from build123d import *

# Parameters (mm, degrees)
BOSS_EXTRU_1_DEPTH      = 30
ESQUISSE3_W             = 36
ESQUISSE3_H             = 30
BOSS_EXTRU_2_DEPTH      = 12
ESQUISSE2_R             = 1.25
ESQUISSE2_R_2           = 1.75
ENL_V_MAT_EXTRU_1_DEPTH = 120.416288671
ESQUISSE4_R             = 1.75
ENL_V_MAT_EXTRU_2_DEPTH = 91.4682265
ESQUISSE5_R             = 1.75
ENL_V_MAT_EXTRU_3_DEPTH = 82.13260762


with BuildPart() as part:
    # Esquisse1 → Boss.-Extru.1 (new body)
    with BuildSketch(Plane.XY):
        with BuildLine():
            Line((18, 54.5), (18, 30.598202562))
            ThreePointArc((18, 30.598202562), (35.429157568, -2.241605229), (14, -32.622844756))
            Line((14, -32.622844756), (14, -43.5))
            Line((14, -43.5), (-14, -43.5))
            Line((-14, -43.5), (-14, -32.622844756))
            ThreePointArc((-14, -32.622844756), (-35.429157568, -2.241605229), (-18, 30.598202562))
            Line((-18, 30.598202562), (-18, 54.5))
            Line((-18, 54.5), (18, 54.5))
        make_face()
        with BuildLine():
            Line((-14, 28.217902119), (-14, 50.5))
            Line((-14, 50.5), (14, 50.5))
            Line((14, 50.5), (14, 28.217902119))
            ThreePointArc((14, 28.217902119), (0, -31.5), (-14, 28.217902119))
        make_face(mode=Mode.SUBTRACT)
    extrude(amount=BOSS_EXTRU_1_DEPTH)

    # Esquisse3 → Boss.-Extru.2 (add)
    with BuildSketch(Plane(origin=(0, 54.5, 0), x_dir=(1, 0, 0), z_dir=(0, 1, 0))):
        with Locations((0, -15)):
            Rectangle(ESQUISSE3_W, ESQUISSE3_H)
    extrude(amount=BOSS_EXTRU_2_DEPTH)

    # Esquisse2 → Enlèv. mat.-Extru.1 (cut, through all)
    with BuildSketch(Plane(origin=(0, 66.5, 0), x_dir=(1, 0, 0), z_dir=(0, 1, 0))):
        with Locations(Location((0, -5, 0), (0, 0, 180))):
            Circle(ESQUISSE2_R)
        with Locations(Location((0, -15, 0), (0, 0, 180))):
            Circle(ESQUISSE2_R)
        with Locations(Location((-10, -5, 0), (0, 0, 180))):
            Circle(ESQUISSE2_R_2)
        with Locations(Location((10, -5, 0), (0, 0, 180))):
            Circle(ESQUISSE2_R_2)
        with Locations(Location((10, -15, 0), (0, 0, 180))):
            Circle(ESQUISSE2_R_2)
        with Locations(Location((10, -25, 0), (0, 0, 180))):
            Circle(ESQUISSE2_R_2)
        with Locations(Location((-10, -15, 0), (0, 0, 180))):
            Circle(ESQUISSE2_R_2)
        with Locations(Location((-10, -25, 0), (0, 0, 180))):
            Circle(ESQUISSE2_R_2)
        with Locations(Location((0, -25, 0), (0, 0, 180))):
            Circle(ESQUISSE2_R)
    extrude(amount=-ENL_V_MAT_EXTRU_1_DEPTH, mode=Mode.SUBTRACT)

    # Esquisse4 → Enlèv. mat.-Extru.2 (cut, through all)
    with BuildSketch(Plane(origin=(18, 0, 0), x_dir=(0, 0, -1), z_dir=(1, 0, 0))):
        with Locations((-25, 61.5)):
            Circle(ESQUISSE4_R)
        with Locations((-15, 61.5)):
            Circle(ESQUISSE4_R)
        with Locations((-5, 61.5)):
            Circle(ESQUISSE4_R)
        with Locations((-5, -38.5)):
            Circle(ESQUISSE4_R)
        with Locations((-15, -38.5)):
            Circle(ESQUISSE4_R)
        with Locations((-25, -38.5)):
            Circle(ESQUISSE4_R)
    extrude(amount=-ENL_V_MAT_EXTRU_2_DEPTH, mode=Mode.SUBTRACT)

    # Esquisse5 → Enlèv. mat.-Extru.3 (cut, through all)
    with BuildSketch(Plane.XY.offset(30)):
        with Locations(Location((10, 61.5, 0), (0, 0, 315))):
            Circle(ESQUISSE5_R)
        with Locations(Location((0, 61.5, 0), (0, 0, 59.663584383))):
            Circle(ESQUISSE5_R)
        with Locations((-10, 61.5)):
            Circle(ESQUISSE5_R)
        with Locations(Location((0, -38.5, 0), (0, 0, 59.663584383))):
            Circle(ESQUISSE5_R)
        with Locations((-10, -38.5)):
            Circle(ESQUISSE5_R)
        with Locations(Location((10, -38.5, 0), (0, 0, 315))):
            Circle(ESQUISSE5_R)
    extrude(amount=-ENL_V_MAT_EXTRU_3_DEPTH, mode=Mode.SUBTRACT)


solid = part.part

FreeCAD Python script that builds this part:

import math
import FreeCAD as App
import Part
import Sketcher

V = App.Vector

doc = App.newDocument("Part")
params = doc.addObject("Spreadsheet::Sheet", "Params")
for row, (alias, value) in enumerate([
    ("sketch1_radius", "35.5 mm"),
    ("sketch1_radius2", "31.5 mm"),
    ("sketch1_width", "36 mm"),
    ("sketch1_width2", "28 mm"),
    ("pad1_length", "30 mm"),
    ("sketch2_width", "36 mm"),
    ("sketch2_height", "30 mm"),
    ("pad2_length", "12 mm"),
    ("sketch3_diameter", "2.5 mm"),
    ("sketch3_diameter2", "3.5 mm"),
    ("sketch4_diameter", "3.5 mm"),
    ("sketch5_diameter", "3.5 mm"),
], start=1):
    params.set(f"A{row}", alias)
    params.set(f"B{row}", "=" + value)
    params.setAlias(f"B{row}", alias)

body = doc.addObject("PartDesign::Body", "Body")

# Sketch on XY plane
sketch1 = body.newObject("Sketcher::SketchObject", "Sketch")
sketch1.AttachmentSupport = (doc.getObject("XY_Plane"), [""])
sketch1.MapMode = "FlatFace"
sketch1.addGeometry(Part.LineSegment(V(18, 30.598203, 0), V(18, 54.5, 0)), False)
sketch1.addGeometry(Part.LineSegment(V(18, 54.5, 0), V(-18, 54.5, 0)), False)
sketch1.addGeometry(Part.LineSegment(V(-18, 54.5, 0), V(-18, 30.598203, 0)), False)
sketch1.addGeometry(Part.ArcOfCircle(Part.Circle(V(0, 0, 0), V(0, 0, 1), 35.5), math.radians(120.467016), math.radians(246.773549)), False)
sketch1.addGeometry(Part.LineSegment(V(-14, -32.622845, 0), V(-14, -43.5, 0)), False)
sketch1.addGeometry(Part.LineSegment(V(-14, -43.5, 0), V(14, -43.5, 0)), False)
sketch1.addGeometry(Part.LineSegment(V(14, -43.5, 0), V(14, -32.622845, 0)), False)
sketch1.addGeometry(Part.ArcOfCircle(Part.Circle(V(0, 0, 0), V(0, 0, 1), 35.5), math.radians(-66.773549), math.radians(59.532984)), False)
sketch1.addGeometry(Part.LineSegment(V(-14, 28.217902, 0), V(-14, 50.5, 0)), False)
sketch1.addGeometry(Part.LineSegment(V(-14, 50.5, 0), V(14, 50.5, 0)), False)
sketch1.addGeometry(Part.LineSegment(V(14, 50.5, 0), V(14, 28.217902, 0)), False)
sketch1.addGeometry(Part.ArcOfCircle(Part.Circle(V(0, 0, 0), V(0, 0, 1), 31.5), math.radians(116.3878), math.radians(423.6122)), False)
sketch1.addConstraint(Sketcher.Constraint("Coincident", 0, 2, 1, 1))
sketch1.addConstraint(Sketcher.Constraint("Coincident", 1, 2, 2, 1))
sketch1.addConstraint(Sketcher.Constraint("Coincident", 2, 2, 3, 1))
sketch1.addConstraint(Sketcher.Constraint("Coincident", 3, 2, 4, 1))
sketch1.addConstraint(Sketcher.Constraint("Coincident", 4, 2, 5, 1))
sketch1.addConstraint(Sketcher.Constraint("Coincident", 5, 2, 6, 1))
sketch1.addConstraint(Sketcher.Constraint("Coincident", 6, 2, 7, 1))
sketch1.addConstraint(Sketcher.Constraint("Coincident", 7, 2, 0, 1))
sketch1.addConstraint(Sketcher.Constraint("Coincident", 8, 2, 9, 1))
sketch1.addConstraint(Sketcher.Constraint("Coincident", 9, 2, 10, 1))
sketch1.addConstraint(Sketcher.Constraint("Coincident", 10, 2, 11, 2))
sketch1.addConstraint(Sketcher.Constraint("Coincident", 11, 1, 8, 1))
sketch1.addConstraint(Sketcher.Constraint("Vertical", 0))
sketch1.addConstraint(Sketcher.Constraint("Horizontal", 1))
sketch1.addConstraint(Sketcher.Constraint("Vertical", 2))
sketch1.addConstraint(Sketcher.Constraint("Vertical", 4))
sketch1.addConstraint(Sketcher.Constraint("Horizontal", 5))
sketch1.addConstraint(Sketcher.Constraint("Vertical", 6))
sketch1.addConstraint(Sketcher.Constraint("Vertical", 8))
sketch1.addConstraint(Sketcher.Constraint("Horizontal", 9))
sketch1.addConstraint(Sketcher.Constraint("Vertical", 10))
sketch1.addConstraint(Sketcher.Constraint("Coincident", 3, 3, -1, 1))
sketch1.addConstraint(Sketcher.Constraint("Coincident", 7, 3, -1, 1))
sketch1.addConstraint(Sketcher.Constraint("Coincident", 11, 3, -1, 1))
sketch1.addConstraint(Sketcher.Constraint("Equal", 3, 7))
sketch1.addConstraint(Sketcher.Constraint("Horizontal", 3, 2, 6, 2))
sketch1.addConstraint(Sketcher.Constraint("Horizontal", 2, 2, 7, 2))
sketch1.addConstraint(Sketcher.Constraint("Horizontal", 10, 2, 11, 1))
sketch1.addConstraint(Sketcher.Constraint("Vertical", 4, 2, 8, 2))
sketch1.addConstraint(Sketcher.Constraint("Radius", 3, 35.5))
sketch1.addConstraint(Sketcher.Constraint("Radius", 11, 31.5))
sketch1.addConstraint(Sketcher.Constraint("DistanceX", 1, 2, 1, 1, 36.0))
sketch1.addConstraint(Sketcher.Constraint("DistanceX", 5, 1, 5, 2, 28.0))
sketch1.addConstraint(Sketcher.Constraint("DistanceY", 8, 2, 1, 2, 4.0))
sketch1.addConstraint(Sketcher.Constraint("DistanceY", -1, 1, 0, 2, 54.5))
sketch1.addConstraint(Sketcher.Constraint("DistanceY", 4, 2, -1, 1, 43.5))
sketch1.setExpression("Constraints[29]", "Params.sketch1_radius")
sketch1.setExpression("Constraints[30]", "Params.sketch1_radius2")
sketch1.setExpression("Constraints[31]", "Params.sketch1_width")
sketch1.setExpression("Constraints[32]", "Params.sketch1_width2")
pad1 = body.newObject("PartDesign::Pad", "Pad")
pad1.Profile = sketch1
pad1.setExpression("Length", "Params.pad1_length")

# Sketch on XZ plane
sketch2 = body.newObject("Sketcher::SketchObject", "Sketch001")
sketch2.AttachmentSupport = (doc.getObject("XZ_Plane"), [""])
sketch2.MapMode = "FlatFace"
sketch2.AttachmentOffset = App.Placement(V(0, 0, -54.5), App.Rotation())
sketch2.addGeometry(Part.LineSegment(V(-18, 0, 0), V(-18, 30, 0)), False)
sketch2.addGeometry(Part.LineSegment(V(-18, 30, 0), V(18, 30, 0)), False)
sketch2.addGeometry(Part.LineSegment(V(18, 30, 0), V(18, 0, 0)), False)
sketch2.addGeometry(Part.LineSegment(V(18, 0, 0), V(-18, 0, 0)), False)
sketch2.addConstraint(Sketcher.Constraint("Coincident", 0, 2, 1, 1))
sketch2.addConstraint(Sketcher.Constraint("Coincident", 1, 2, 2, 1))
sketch2.addConstraint(Sketcher.Constraint("Coincident", 2, 2, 3, 1))
sketch2.addConstraint(Sketcher.Constraint("Coincident", 3, 2, 0, 1))
sketch2.addConstraint(Sketcher.Constraint("Vertical", 0))
sketch2.addConstraint(Sketcher.Constraint("Horizontal", 1))
sketch2.addConstraint(Sketcher.Constraint("Vertical", 2))
sketch2.addConstraint(Sketcher.Constraint("Horizontal", 3))
sketch2.addConstraint(Sketcher.Constraint("Symmetric", 2, 2, 3, 2, -1, 1))
sketch2.addConstraint(Sketcher.Constraint("DistanceX", 1, 1, 1, 2, 36.0))
sketch2.addConstraint(Sketcher.Constraint("DistanceY", 0, 1, 0, 2, 30.0))
sketch2.setExpression("Constraints[9]", "Params.sketch2_width")
sketch2.setExpression("Constraints[10]", "Params.sketch2_height")
pad2 = body.newObject("PartDesign::Pad", "Pad001")
pad2.Profile = sketch2
pad2.setExpression("Length", "Params.pad2_length")
pad2.Reversed = True

# Sketch on XZ plane
sketch3 = body.newObject("Sketcher::SketchObject", "Sketch002")
sketch3.AttachmentSupport = (doc.getObject("XZ_Plane"), [""])
sketch3.MapMode = "FlatFace"
sketch3.AttachmentOffset = App.Placement(V(0, 0, -66.5), App.Rotation())
sketch3.addGeometry(Part.Circle(V(0, 5, 0), V(0, 0, 1), 1.25), False)
sketch3.addGeometry(Part.Circle(V(0, 15, 0), V(0, 0, 1), 1.25), False)
sketch3.addGeometry(Part.Circle(V(-10, 5, 0), V(0, 0, 1), 1.75), False)
sketch3.addGeometry(Part.Circle(V(10, 5, 0), V(0, 0, 1), 1.75), False)
sketch3.addGeometry(Part.Circle(V(10, 15, 0), V(0, 0, 1), 1.75), False)
sketch3.addGeometry(Part.Circle(V(10, 25, 0), V(0, 0, 1), 1.75), False)
sketch3.addGeometry(Part.Circle(V(-10, 15, 0), V(0, 0, 1), 1.75), False)
sketch3.addGeometry(Part.Circle(V(-10, 25, 0), V(0, 0, 1), 1.75), False)
sketch3.addGeometry(Part.Circle(V(0, 25, 0), V(0, 0, 1), 1.25), False)
sketch3.addConstraint(Sketcher.Constraint("Equal", 0, 1))
sketch3.addConstraint(Sketcher.Constraint("Equal", 2, 3))
sketch3.addConstraint(Sketcher.Constraint("Equal", 3, 4))
sketch3.addConstraint(Sketcher.Constraint("Equal", 4, 5))
sketch3.addConstraint(Sketcher.Constraint("Equal", 5, 6))
sketch3.addConstraint(Sketcher.Constraint("Equal", 6, 7))
sketch3.addConstraint(Sketcher.Constraint("Equal", 1, 8))
sketch3.addConstraint(Sketcher.Constraint("Symmetric", 2, 3, 3, 3, -2))
sketch3.addConstraint(Sketcher.Constraint("Symmetric", 4, 3, 6, 3, -2))
sketch3.addConstraint(Sketcher.Constraint("Symmetric", 5, 3, 7, 3, -2))
sketch3.addConstraint(Sketcher.Constraint("PointOnObject", 0, 3, -2))
sketch3.addConstraint(Sketcher.Constraint("PointOnObject", 1, 3, -2))
sketch3.addConstraint(Sketcher.Constraint("PointOnObject", 8, 3, -2))
sketch3.addConstraint(Sketcher.Constraint("Horizontal", 0, 3, 2, 3))
sketch3.addConstraint(Sketcher.Constraint("Horizontal", 1, 3, 4, 3))
sketch3.addConstraint(Sketcher.Constraint("Horizontal", 7, 3, 8, 3))
sketch3.addConstraint(Sketcher.Constraint("Vertical", 3, 3, 4, 3))
sketch3.addConstraint(Sketcher.Constraint("Vertical", 4, 3, 5, 3))
sketch3.addConstraint(Sketcher.Constraint("Diameter", 0, 2.5))
sketch3.addConstraint(Sketcher.Constraint("Diameter", 2, 3.5))
sketch3.addConstraint(Sketcher.Constraint("DistanceY", -1, 1, 0, 3, 5.0))
sketch3.addConstraint(Sketcher.Constraint("DistanceY", -1, 1, 1, 3, 15.0))
sketch3.addConstraint(Sketcher.Constraint("DistanceX", 2, 3, -1, 1, 10.0))
sketch3.addConstraint(Sketcher.Constraint("DistanceY", -1, 1, 5, 3, 25.0))
sketch3.setExpression("Constraints[18]", "Params.sketch3_diameter")
sketch3.setExpression("Constraints[19]", "Params.sketch3_diameter2")
pocket1 = body.newObject("PartDesign::Pocket", "Pocket")
pocket1.Profile = sketch3
pocket1.Type = "ThroughAll"
pocket1.Reversed = True

# Sketch on YZ plane
sketch4 = body.newObject("Sketcher::SketchObject", "Sketch003")
sketch4.AttachmentSupport = (doc.getObject("YZ_Plane"), [""])
sketch4.MapMode = "FlatFace"
sketch4.AttachmentOffset = App.Placement(V(0, 0, 18), App.Rotation())
sketch4.addGeometry(Part.Circle(V(61.5, 25, 0), V(0, 0, 1), 1.75), False)
sketch4.addGeometry(Part.Circle(V(61.5, 15, 0), V(0, 0, 1), 1.75), False)
sketch4.addGeometry(Part.Circle(V(61.5, 5, 0), V(0, 0, 1), 1.75), False)
sketch4.addGeometry(Part.Circle(V(-38.5, 5, 0), V(0, 0, 1), 1.75), False)
sketch4.addGeometry(Part.Circle(V(-38.5, 15, 0), V(0, 0, 1), 1.75), False)
sketch4.addGeometry(Part.Circle(V(-38.5, 25, 0), V(0, 0, 1), 1.75), False)
sketch4.addConstraint(Sketcher.Constraint("Equal", 0, 1))
sketch4.addConstraint(Sketcher.Constraint("Equal", 1, 2))
sketch4.addConstraint(Sketcher.Constraint("Equal", 2, 3))
sketch4.addConstraint(Sketcher.Constraint("Equal", 3, 4))
sketch4.addConstraint(Sketcher.Constraint("Equal", 4, 5))
sketch4.addConstraint(Sketcher.Constraint("Horizontal", 2, 3, 3, 3))
sketch4.addConstraint(Sketcher.Constraint("Horizontal", 1, 3, 4, 3))
sketch4.addConstraint(Sketcher.Constraint("Horizontal", 0, 3, 5, 3))
sketch4.addConstraint(Sketcher.Constraint("Vertical", 0, 3, 1, 3))
sketch4.addConstraint(Sketcher.Constraint("Vertical", 1, 3, 2, 3))
sketch4.addConstraint(Sketcher.Constraint("Vertical", 3, 3, 4, 3))
sketch4.addConstraint(Sketcher.Constraint("Vertical", 4, 3, 5, 3))
sketch4.addConstraint(Sketcher.Constraint("Diameter", 0, 3.5))
sketch4.addConstraint(Sketcher.Constraint("DistanceY", -1, 1, 0, 3, 25.0))
sketch4.addConstraint(Sketcher.Constraint("DistanceY", -1, 1, 1, 3, 15.0))
sketch4.addConstraint(Sketcher.Constraint("DistanceY", -1, 1, 2, 3, 5.0))
sketch4.addConstraint(Sketcher.Constraint("DistanceX", 3, 3, 2, 3, 100.0))
sketch4.addConstraint(Sketcher.Constraint("DistanceX", -1, 1, 0, 3, 61.5))
sketch4.setExpression("Constraints[12]", "Params.sketch4_diameter")
pocket2 = body.newObject("PartDesign::Pocket", "Pocket001")
pocket2.Profile = sketch4
pocket2.Type = "ThroughAll"

# Sketch on XY plane
sketch5 = body.newObject("Sketcher::SketchObject", "Sketch004")
sketch5.AttachmentSupport = (doc.getObject("XY_Plane"), [""])
sketch5.MapMode = "FlatFace"
sketch5.AttachmentOffset = App.Placement(V(0, 0, 30), App.Rotation())
sketch5.addGeometry(Part.Circle(V(10, 61.5, 0), V(0, 0, 1), 1.75), False)
sketch5.addGeometry(Part.Circle(V(0, 61.5, 0), V(0, 0, 1), 1.75), False)
sketch5.addGeometry(Part.Circle(V(-10, 61.5, 0), V(0, 0, 1), 1.75), False)
sketch5.addGeometry(Part.Circle(V(0, -38.5, 0), V(0, 0, 1), 1.75), False)
sketch5.addGeometry(Part.Circle(V(-10, -38.5, 0), V(0, 0, 1), 1.75), False)
sketch5.addGeometry(Part.Circle(V(10, -38.5, 0), V(0, 0, 1), 1.75), False)
sketch5.addConstraint(Sketcher.Constraint("Equal", 0, 1))
sketch5.addConstraint(Sketcher.Constraint("Equal", 1, 2))
sketch5.addConstraint(Sketcher.Constraint("Equal", 2, 3))
sketch5.addConstraint(Sketcher.Constraint("Equal", 3, 4))
sketch5.addConstraint(Sketcher.Constraint("Equal", 4, 5))
sketch5.addConstraint(Sketcher.Constraint("Symmetric", 0, 3, 2, 3, -2))
sketch5.addConstraint(Sketcher.Constraint("Symmetric", 4, 3, 5, 3, -2))
sketch5.addConstraint(Sketcher.Constraint("PointOnObject", 1, 3, -2))
sketch5.addConstraint(Sketcher.Constraint("PointOnObject", 3, 3, -2))
sketch5.addConstraint(Sketcher.Constraint("Horizontal", 0, 3, 1, 3))
sketch5.addConstraint(Sketcher.Constraint("Horizontal", 3, 3, 4, 3))
sketch5.addConstraint(Sketcher.Constraint("Vertical", 2, 3, 4, 3))
sketch5.addConstraint(Sketcher.Constraint("Diameter", 0, 3.5))
sketch5.addConstraint(Sketcher.Constraint("DistanceX", -1, 1, 0, 3, 10.0))
sketch5.addConstraint(Sketcher.Constraint("DistanceY", 3, 3, 1, 3, 100.0))
sketch5.addConstraint(Sketcher.Constraint("DistanceY", -1, 1, 0, 3, 61.5))
sketch5.setExpression("Constraints[12]", "Params.sketch5_diameter")
pocket3 = body.newObject("PartDesign::Pocket", "Pocket002")
pocket3.Profile = sketch5
pocket3.Type = "ThroughAll"

doc.recompute()
